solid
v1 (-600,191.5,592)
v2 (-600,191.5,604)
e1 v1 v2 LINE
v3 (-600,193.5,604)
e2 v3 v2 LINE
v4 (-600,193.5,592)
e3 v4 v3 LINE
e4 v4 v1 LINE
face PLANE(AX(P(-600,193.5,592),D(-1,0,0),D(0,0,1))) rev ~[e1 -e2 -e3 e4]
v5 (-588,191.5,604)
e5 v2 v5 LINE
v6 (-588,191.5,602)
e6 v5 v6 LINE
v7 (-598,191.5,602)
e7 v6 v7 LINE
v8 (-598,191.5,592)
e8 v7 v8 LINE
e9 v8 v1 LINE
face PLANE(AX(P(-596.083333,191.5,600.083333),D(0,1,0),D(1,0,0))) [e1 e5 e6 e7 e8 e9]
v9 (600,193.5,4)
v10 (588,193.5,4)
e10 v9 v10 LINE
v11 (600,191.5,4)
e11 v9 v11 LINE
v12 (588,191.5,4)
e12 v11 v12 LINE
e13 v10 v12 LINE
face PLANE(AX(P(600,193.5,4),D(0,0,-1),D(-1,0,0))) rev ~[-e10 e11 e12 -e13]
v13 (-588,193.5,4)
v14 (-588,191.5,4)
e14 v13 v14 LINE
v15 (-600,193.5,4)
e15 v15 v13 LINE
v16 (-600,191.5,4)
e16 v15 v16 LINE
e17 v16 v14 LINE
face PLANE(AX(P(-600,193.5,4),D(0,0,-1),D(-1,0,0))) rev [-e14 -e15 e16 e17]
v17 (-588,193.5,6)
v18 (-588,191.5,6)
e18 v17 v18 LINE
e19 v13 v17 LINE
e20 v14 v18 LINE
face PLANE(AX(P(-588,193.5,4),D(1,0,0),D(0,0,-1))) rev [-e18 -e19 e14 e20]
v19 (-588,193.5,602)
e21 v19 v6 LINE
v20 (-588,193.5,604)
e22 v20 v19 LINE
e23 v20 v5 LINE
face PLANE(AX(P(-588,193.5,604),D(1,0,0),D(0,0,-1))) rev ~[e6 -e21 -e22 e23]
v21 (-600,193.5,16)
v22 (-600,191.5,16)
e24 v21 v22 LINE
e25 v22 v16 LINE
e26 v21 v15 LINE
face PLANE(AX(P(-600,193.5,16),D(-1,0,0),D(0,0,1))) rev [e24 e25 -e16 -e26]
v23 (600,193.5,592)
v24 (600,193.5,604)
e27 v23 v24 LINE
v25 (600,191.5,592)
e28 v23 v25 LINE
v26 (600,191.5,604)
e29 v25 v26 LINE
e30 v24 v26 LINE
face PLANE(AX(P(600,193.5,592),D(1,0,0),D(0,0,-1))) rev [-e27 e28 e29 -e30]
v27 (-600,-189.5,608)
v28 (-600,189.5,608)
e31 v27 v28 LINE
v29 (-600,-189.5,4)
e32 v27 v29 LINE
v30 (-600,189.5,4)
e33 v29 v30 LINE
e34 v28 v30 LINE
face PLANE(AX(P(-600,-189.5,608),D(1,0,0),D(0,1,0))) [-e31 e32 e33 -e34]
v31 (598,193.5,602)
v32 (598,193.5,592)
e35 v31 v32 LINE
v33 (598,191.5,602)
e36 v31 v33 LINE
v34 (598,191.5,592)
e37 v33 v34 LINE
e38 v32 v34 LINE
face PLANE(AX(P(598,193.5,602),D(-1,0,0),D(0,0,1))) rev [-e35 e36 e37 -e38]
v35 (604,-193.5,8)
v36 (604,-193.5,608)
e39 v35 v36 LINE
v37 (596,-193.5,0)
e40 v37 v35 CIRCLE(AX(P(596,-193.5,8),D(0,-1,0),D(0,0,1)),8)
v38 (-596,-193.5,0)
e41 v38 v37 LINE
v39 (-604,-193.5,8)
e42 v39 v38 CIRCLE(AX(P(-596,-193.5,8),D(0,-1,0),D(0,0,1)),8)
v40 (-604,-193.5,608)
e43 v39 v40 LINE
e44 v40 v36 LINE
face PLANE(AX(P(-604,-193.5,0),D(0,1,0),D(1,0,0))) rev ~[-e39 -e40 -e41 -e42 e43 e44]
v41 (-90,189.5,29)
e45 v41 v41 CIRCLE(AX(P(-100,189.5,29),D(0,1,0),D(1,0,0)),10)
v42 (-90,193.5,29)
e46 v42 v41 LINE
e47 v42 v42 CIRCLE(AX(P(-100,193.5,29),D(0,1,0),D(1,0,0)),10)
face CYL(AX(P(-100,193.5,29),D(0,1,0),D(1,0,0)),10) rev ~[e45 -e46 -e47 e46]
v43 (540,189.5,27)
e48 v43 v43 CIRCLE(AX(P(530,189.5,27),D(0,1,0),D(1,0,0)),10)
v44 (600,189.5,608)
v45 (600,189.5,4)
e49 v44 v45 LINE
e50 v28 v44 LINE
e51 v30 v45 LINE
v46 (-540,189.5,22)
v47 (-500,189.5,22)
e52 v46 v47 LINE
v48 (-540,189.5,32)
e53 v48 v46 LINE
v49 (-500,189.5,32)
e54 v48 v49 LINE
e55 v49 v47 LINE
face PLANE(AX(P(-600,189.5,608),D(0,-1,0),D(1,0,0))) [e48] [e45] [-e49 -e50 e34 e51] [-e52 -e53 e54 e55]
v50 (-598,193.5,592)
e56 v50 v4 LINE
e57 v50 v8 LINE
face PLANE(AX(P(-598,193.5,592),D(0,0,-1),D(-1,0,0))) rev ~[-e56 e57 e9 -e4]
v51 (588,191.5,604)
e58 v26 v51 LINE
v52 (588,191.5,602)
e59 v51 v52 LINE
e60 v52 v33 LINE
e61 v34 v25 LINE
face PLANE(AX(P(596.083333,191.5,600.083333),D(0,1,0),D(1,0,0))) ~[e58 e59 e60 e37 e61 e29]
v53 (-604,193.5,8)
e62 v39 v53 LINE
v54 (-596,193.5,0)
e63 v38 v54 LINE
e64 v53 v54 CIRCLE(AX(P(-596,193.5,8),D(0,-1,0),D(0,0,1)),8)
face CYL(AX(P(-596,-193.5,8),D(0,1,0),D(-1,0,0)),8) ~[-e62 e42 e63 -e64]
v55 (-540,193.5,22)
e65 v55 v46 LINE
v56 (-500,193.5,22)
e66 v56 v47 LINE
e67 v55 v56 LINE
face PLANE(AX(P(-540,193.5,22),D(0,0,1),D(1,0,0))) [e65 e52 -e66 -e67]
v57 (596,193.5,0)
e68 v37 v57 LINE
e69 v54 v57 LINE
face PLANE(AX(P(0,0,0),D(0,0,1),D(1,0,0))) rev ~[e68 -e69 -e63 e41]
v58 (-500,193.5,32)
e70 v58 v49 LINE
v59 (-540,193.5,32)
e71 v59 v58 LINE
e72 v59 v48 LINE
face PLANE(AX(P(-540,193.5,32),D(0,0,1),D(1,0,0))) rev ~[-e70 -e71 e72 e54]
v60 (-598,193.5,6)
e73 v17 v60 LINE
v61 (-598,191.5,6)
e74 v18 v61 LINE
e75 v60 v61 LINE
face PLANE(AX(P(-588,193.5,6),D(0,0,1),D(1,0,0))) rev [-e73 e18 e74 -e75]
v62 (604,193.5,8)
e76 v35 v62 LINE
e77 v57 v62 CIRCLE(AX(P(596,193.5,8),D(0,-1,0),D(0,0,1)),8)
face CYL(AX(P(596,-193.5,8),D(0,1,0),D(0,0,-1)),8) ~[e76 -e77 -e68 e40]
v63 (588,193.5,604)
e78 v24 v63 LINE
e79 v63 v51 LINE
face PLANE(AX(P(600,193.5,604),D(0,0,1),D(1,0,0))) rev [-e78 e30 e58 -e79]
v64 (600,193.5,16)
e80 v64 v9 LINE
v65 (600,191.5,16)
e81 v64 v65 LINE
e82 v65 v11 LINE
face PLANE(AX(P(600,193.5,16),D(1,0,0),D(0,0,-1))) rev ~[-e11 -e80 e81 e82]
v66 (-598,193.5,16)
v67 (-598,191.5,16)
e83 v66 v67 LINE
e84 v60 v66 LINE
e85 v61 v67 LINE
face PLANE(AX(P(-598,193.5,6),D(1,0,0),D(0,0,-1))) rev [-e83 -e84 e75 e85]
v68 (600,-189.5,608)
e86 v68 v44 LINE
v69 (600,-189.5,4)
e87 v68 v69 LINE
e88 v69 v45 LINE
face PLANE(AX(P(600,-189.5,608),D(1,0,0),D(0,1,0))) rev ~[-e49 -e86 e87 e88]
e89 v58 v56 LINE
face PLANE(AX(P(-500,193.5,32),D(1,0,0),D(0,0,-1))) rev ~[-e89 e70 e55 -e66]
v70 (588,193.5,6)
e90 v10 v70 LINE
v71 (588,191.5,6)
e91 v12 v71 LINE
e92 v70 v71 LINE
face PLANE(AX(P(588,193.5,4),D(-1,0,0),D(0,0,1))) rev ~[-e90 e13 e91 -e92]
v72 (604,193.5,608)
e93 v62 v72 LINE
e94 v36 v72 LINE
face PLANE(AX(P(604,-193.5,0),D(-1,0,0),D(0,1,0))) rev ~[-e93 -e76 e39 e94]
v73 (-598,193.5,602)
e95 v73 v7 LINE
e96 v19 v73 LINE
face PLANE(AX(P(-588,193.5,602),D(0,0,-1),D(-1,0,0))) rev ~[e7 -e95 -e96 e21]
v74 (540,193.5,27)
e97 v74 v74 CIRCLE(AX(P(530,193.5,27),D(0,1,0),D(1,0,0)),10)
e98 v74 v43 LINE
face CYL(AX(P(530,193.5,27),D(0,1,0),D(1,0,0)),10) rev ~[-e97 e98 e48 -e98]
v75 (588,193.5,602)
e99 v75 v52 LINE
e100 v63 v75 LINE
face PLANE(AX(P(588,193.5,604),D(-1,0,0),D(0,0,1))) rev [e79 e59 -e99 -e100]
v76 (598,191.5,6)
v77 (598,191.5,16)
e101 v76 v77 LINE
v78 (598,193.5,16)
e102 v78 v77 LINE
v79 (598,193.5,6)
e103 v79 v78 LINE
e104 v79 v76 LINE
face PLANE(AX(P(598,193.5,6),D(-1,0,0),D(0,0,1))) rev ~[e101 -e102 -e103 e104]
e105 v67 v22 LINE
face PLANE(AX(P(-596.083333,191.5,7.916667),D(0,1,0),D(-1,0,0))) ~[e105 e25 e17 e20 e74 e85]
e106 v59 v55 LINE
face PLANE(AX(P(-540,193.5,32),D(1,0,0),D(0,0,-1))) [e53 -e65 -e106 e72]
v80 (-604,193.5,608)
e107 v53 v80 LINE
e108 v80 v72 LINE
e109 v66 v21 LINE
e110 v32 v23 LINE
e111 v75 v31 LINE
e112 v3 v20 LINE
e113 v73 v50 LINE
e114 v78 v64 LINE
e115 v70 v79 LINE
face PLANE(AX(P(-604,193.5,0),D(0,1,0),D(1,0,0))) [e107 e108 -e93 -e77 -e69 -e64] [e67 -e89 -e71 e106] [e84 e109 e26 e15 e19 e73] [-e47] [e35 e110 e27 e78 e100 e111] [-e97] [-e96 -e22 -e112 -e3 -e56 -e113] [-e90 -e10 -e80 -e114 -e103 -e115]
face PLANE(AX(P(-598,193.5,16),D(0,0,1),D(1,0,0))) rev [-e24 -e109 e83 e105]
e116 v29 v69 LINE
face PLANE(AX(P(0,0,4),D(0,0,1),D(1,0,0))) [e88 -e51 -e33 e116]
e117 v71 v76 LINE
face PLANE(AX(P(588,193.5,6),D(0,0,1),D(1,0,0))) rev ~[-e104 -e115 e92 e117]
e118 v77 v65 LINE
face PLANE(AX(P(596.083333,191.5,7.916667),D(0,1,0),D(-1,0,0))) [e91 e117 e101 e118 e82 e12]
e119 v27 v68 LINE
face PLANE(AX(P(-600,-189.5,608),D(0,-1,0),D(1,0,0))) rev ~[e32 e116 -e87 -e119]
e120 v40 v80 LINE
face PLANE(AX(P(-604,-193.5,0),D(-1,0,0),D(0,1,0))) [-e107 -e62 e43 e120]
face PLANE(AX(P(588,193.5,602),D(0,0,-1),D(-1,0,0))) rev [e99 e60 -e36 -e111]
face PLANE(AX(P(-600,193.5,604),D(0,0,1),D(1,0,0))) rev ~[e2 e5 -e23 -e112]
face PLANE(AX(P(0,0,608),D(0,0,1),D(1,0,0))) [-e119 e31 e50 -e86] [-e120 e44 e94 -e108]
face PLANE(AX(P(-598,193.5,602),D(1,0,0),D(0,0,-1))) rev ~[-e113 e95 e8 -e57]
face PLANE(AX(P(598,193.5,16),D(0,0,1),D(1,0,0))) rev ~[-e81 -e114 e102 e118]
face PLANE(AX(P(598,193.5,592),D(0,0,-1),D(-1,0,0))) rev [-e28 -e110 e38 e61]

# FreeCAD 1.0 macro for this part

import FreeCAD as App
import Part
import Sketcher
Q = App.Units.Quantity


def edges_at(feature, points):
    """Names of the edges that pass closest to the given points."""
    edges = feature.Shape.Edges
    near = lambda p: min(range(len(edges)), key=lambda i: edges[i].distToShape(Part.Vertex(*p))[0])
    return sorted({f"Edge{near(p) + 1}" for p in points})

doc = App.newDocument("Part")
body = doc.addObject("PartDesign::Body", "Body")

# Sketch on XY plane
sketch1 = body.newObject("Sketcher::SketchObject", "Sketch")
sketch1.AttachmentSupport = (doc.getObject("XY_Plane"), [""])
sketch1.MapMode = "FlatFace"
sketch1.addGeometry([
    Part.LineSegment(App.Vector(-604, 193.5, 0), App.Vector(-604, -193.5, 0)),
    Part.LineSegment(App.Vector(-604, -193.5, 0), App.Vector(604, -193.5, 0)),
    Part.LineSegment(App.Vector(604, -193.5, 0), App.Vector(604, 193.5, 0)),
    Part.LineSegment(App.Vector(604, 193.5, 0), App.Vector(-604, 193.5, 0)),
], False)
sketch1.addConstraint([
    Sketcher.Constraint("Coincident", 0, 2, 1, 1),
    Sketcher.Constraint("Coincident", 1, 2, 2, 1),
    Sketcher.Constraint("Coincident", 2, 2, 3, 1),
    Sketcher.Constraint("Coincident", 3, 2, 0, 1),
    Sketcher.Constraint("Vertical", 0),
    Sketcher.Constraint("Horizontal", 1),
    Sketcher.Constraint("Vertical", 2),
    Sketcher.Constraint("Horizontal", 3),
    Sketcher.Constraint("Symmetric", 0, 2, 2, 2, -1, 1),
    Sketcher.Constraint("DistanceX", 1, 1, 1, 2, Q("1208 mm")),
    Sketcher.Constraint("DistanceY", 0, 2, 0, 1, Q("387 mm")),
])
pad1 = body.newObject("PartDesign::Pad", "Pad")
pad1.Profile = sketch1
pad1.Length = 608

# Sketch on XY plane
sketch2 = body.newObject("Sketcher::SketchObject", "Sketch001")
sketch2.AttachmentSupport = (doc.getObject("XY_Plane"), [""])
sketch2.MapMode = "FlatFace"
sketch2.AttachmentOffset = App.Placement(App.Vector(0, 0, 608), App.Rotation())
sketch2.addGeometry([
    Part.LineSegment(App.Vector(-600, 189.5, 0), App.Vector(-600, -189.5, 0)),
    Part.LineSegment(App.Vector(-600, -189.5, 0), App.Vector(600, -189.5, 0)),
    Part.LineSegment(App.Vector(600, -189.5, 0), App.Vector(600, 189.5, 0)),
    Part.LineSegment(App.Vector(600, 189.5, 0), App.Vector(-600, 189.5, 0)),
], False)
sketch2.addConstraint([
    Sketcher.Constraint("Coincident", 0, 2, 1, 1),
    Sketcher.Constraint("Coincident", 1, 2, 2, 1),
    Sketcher.Constraint("Coincident", 2, 2, 3, 1),
    Sketcher.Constraint("Coincident", 3, 2, 0, 1),
    Sketcher.Constraint("Vertical", 0),
    Sketcher.Constraint("Horizontal", 1),
    Sketcher.Constraint("Vertical", 2),
    Sketcher.Constraint("Horizontal", 3),
    Sketcher.Constraint("Symmetric", 0, 2, 2, 2, -1, 1),
    Sketcher.Constraint("DistanceX", 1, 1, 1, 2, Q("1200 mm")),
    Sketcher.Constraint("DistanceY", 0, 2, 0, 1, Q("379 mm")),
])
pocket1 = body.newObject("PartDesign::Pocket", "Pocket")
pocket1.Profile = sketch2
pocket1.Length = 604
doc.recompute()

fillet = body.newObject("PartDesign::Fillet", "Fillet")
fillet.Base = (pocket1, edges_at(pocket1, [(-604, 0, 0), (604, 0, 0)]))
fillet.Radius = 8

# Sketch on XZ plane
sketch3 = body.newObject("Sketcher::SketchObject", "Sketch002")
sketch3.AttachmentSupport = (doc.getObject("XZ_Plane"), [""])
sketch3.MapMode = "FlatFace"
sketch3.AttachmentOffset = App.Placement(App.Vector(0, 0, -193.5), App.Rotation())
sketch3.addGeometry([
    Part.LineSegment(App.Vector(-600, 604, 0), App.Vector(-588, 604, 0)),  # 0
    Part.LineSegment(App.Vector(-588, 604, 0), App.Vector(-588, 602, 0)),  # 1
    Part.LineSegment(App.Vector(-588, 602, 0), App.Vector(-598, 602, 0)),  # 2
    Part.LineSegment(App.Vector(-598, 602, 0), App.Vector(-598, 592, 0)),  # 3
    Part.LineSegment(App.Vector(-598, 592, 0), App.Vector(-600, 592, 0)),  # 4
    Part.LineSegment(App.Vector(-600, 592, 0), App.Vector(-600, 604, 0)),  # 5
], False)
sketch3.addConstraint([
    Sketcher.Constraint("Coincident", 0, 2, 1, 1),
    Sketcher.Constraint("Coincident", 1, 2, 2, 1),
    Sketcher.Constraint("Coincident", 2, 2, 3, 1),
    Sketcher.Constraint("Coincident", 3, 2, 4, 1),
    Sketcher.Constraint("Coincident", 4, 2, 5, 1),
    Sketcher.Constraint("Coincident", 5, 2, 0, 1),
    Sketcher.Constraint("Horizontal", 0),
    Sketcher.Constraint("Vertical", 1),
    Sketcher.Constraint("Horizontal", 2),
    Sketcher.Constraint("Vertical", 3),
    Sketcher.Constraint("Horizontal", 4),
    Sketcher.Constraint("Vertical", 5),
    Sketcher.Constraint("Equal", 4, 1),
    Sketcher.Constraint("Equal", 2, 3),
    Sketcher.Constraint("DistanceX", 0, 1, 0, 2, Q("12 mm")),
    Sketcher.Constraint("DistanceX", 2, 2, 2, 1, Q("10 mm")),
    Sketcher.Constraint("DistanceX", 0, 2, -1, 1, Q("588 mm")),
    Sketcher.Constraint("DistanceY", -1, 1, 0, 2, Q("604 mm")),
])
pocket2 = body.newObject("PartDesign::Pocket", "Pocket001")
pocket2.Profile = sketch3
pocket2.Length = 2
pocket2.Reversed = True
doc.recompute()

mirrored = body.newObject("PartDesign::Mirrored", "Mirrored")
mirrored.Originals = [pocket2]
mirrored.MirrorPlane = (doc.getObject("YZ_Plane"), [""])
body.Tip = mirrored
doc.recompute()

datumplane = body.newObject("PartDesign::Plane", "DatumPlane")
datumplane.AttachmentSupport = (doc.getObject("XY_Plane"), [""])
datumplane.MapMode = "FlatFace"
datumplane.AttachmentOffset = App.Placement(App.Vector(0, 0, 304), App.Rotation())
mirrored2 = body.newObject("PartDesign::Mirrored", "Mirrored001")
mirrored2.Originals = [pocket2]
mirrored2.MirrorPlane = (datumplane, [""])
body.Tip = mirrored2

# Sketch on XZ plane
sketch4 = body.newObject("Sketcher::SketchObject", "Sketch003")
sketch4.AttachmentSupport = (doc.getObject("XZ_Plane"), [""])
sketch4.MapMode = "FlatFace"
sketch4.AttachmentOffset = App.Placement(App.Vector(0, 0, -193.5), App.Rotation())
sketch4.addGeometry([
    Part.LineSegment(App.Vector(600, 4, 0), App.Vector(588, 4, 0)),  # 0
    Part.LineSegment(App.Vector(588, 4, 0), App.Vector(588, 6, 0)),  # 1
    Part.LineSegment(App.Vector(588, 6, 0), App.Vector(598, 6, 0)),  # 2
    Part.LineSegment(App.Vector(598, 6, 0), App.Vector(598, 16, 0)),  # 3
    Part.LineSegment(App.Vector(598, 16, 0), App.Vector(600, 16, 0)),  # 4
    Part.LineSegment(App.Vector(600, 16, 0), App.Vector(600, 4, 0)),  # 5
], False)
sketch4.addConstraint([
    Sketcher.Constraint("Coincident", 0, 2, 1, 1),
    Sketcher.Constraint("Coincident", 1, 2, 2, 1),
    Sketcher.Constraint("Coincident", 2, 2, 3, 1),
    Sketcher.Constraint("Coincident", 3, 2, 4, 1),
    Sketcher.Constraint("Coincident", 4, 2, 5, 1),
    Sketcher.Constraint("Coincident", 5, 2, 0, 1),
    Sketcher.Constraint("Horizontal", 0),
    Sketcher.Constraint("Vertical", 1),
    Sketcher.Constraint("Horizontal", 2),
    Sketcher.Constraint("Vertical", 3),
    Sketcher.Constraint("Horizontal", 4),
    Sketcher.Constraint("Vertical", 5),
    Sketcher.Constraint("Equal", 4, 1),
    Sketcher.Constraint("Equal", 2, 3),
    Sketcher.Constraint("DistanceX", 0, 2, 0, 1, Q("12 mm")),
    Sketcher.Constraint("DistanceX", 2, 1, 2, 2, Q("10 mm")),
    Sketcher.Constraint("DistanceX", -1, 1, 0, 2, Q("588 mm")),
    Sketcher.Constraint("DistanceY", -1, 1, 0, 2, Q("4 mm")),
])
pocket3 = body.newObject("PartDesign::Pocket", "Pocket002")
pocket3.Profile = sketch4
pocket3.Length = 2
pocket3.Reversed = True

# Sketch on XZ plane
sketch5 = body.newObject("Sketcher::SketchObject", "Sketch004")
sketch5.AttachmentSupport = (doc.getObject("XZ_Plane"), [""])
sketch5.MapMode = "FlatFace"
sketch5.AttachmentOffset = App.Placement(App.Vector(0, 0, -193.5), App.Rotation())
sketch5.addGeometry([
    Part.Circle(App.Vector(-100, 29, 0), App.Vector(0, 0, 1), 10),  # 0
    Part.Circle(App.Vector(530, 27, 0), App.Vector(0, 0, 1), 10),  # 1
    Part.LineSegment(App.Vector(-540, 22, 0), App.Vector(-540, 32, 0)),  # 2
    Part.LineSegment(App.Vector(-540, 32, 0), App.Vector(-500, 32, 0)),  # 3
    Part.LineSegment(App.Vector(-500, 32, 0), App.Vector(-500, 22, 0)),  # 4
    Part.LineSegment(App.Vector(-500, 22, 0), App.Vector(-540, 22, 0)),  # 5
], False)
sketch5.addConstraint([
    Sketcher.Constraint("Coincident", 2, 2, 3, 1),
    Sketcher.Constraint("Coincident", 3, 2, 4, 1),
    Sketcher.Constraint("Coincident", 4, 2, 5, 1),
    Sketcher.Constraint("Coincident", 5, 2, 2, 1),
    Sketcher.Constraint("Vertical", 2),
    Sketcher.Constraint("Horizontal", 3),
    Sketcher.Constraint("Vertical", 4),
    Sketcher.Constraint("Horizontal", 5),
    Sketcher.Constraint("Equal", 0, 1),
    Sketcher.Constraint("Diameter", 0, Q("20 mm")),
    Sketcher.Constraint("DistanceX", 3, 1, 3, 2, Q("40 mm")),
    Sketcher.Constraint("DistanceY", 2, 1, 2, 2, Q("10 mm")),
    Sketcher.Constraint("DistanceX", 0, 3, -1, 1, Q("100 mm")),
    Sketcher.Constraint("DistanceY", -1, 1, 0, 3, Q("29 mm")),
    Sketcher.Constraint("DistanceX", -1, 1, 1, 3, Q("530 mm")),
    Sketcher.Constraint("DistanceY", -1, 1, 1, 3, Q("27 mm")),
    Sketcher.Constraint("DistanceX", 2, 2, -1, 1, Q("540 mm")),
    Sketcher.Constraint("DistanceY", -1, 1, 2, 2, Q("32 mm")),
])
pocket4 = body.newObject("PartDesign::Pocket", "Pocket003")
pocket4.Profile = sketch5
pocket4.Length = 4
pocket4.Reversed = True

doc.recompute()
